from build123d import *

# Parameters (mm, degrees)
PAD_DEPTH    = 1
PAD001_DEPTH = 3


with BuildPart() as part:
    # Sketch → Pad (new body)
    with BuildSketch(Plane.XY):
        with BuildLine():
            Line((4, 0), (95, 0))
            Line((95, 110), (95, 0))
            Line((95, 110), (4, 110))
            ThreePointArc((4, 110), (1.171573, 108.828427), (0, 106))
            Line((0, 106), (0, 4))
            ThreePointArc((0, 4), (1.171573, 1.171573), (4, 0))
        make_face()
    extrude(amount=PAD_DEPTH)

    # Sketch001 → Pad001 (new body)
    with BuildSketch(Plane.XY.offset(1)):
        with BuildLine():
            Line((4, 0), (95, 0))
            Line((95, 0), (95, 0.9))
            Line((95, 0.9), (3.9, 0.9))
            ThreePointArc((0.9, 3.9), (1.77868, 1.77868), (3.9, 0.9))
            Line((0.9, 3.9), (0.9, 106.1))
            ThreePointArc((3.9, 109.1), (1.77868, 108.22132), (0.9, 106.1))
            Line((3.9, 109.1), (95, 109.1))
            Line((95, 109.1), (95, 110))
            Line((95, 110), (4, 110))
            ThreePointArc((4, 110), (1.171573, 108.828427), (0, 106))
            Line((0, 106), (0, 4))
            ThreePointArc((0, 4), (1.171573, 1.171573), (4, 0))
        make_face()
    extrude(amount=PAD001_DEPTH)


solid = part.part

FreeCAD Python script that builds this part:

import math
import FreeCAD as App
import Part
import Sketcher

V = App.Vector

doc = App.newDocument("Part")
body = doc.addObject("PartDesign::Body", "Body")

sketch1 = body.newObject("Sketcher::SketchObject", "Sketch")
sketch1.AttachmentSupport = (doc.getObject("XY_Plane"), [""])
sketch1.MapMode = "FlatFace"
sketch1.addGeometry(Part.LineSegment(V(4, 0, 0), V(95, 0, 0)), False)
sketch1.addGeometry(Part.LineSegment(V(95, 0, 0), V(95, 110, 0)), False)
sketch1.addGeometry(Part.LineSegment(V(95, 110, 0), V(4, 110, 0)), False)
sketch1.addGeometry(Part.ArcOfCircle(Part.Circle(V(4, 106, 0), V(0, 0, 1), 4), math.radians(90), math.radians(180)), False)
sketch1.addGeometry(Part.LineSegment(V(0, 106, 0), V(0, 4, 0)), False)
sketch1.addGeometry(Part.ArcOfCircle(Part.Circle(V(4, 4, 0), V(0, 0, 1), 4), math.radians(-180), math.radians(-90)), False)
sketch1.addConstraint(Sketcher.Constraint("Coincident", 0, 2, 1, 1))
sketch1.addConstraint(Sketcher.Constraint("Coincident", 1, 2, 2, 1))
sketch1.addConstraint(Sketcher.Constraint("Tangent", 2, 2, 3, 1))
sketch1.addConstraint(Sketcher.Constraint("Tangent", 3, 2, 4, 1))
sketch1.addConstraint(Sketcher.Constraint("Tangent", 4, 2, 5, 1))
sketch1.addConstraint(Sketcher.Constraint("Tangent", 5, 2, 0, 1))
sketch1.addConstraint(Sketcher.Constraint("Horizontal", 0))
sketch1.addConstraint(Sketcher.Constraint("Vertical", 1))
sketch1.addConstraint(Sketcher.Constraint("Horizontal", 2))
sketch1.addConstraint(Sketcher.Constraint("Vertical", 4))
sketch1.addConstraint(Sketcher.Constraint("Equal", 3, 5))
sketch1.addConstraint(Sketcher.Constraint("PointOnObject", 0, 2, -1))
sketch1.addConstraint(Sketcher.Constraint("PointOnObject", 3, 2, -2))
sketch1.addConstraint(Sketcher.Constraint("Radius", 3, 4.0))
sketch1.addConstraint(Sketcher.Constraint("DistanceX", 0, 1, 0, 2, 91.0))
sketch1.addConstraint(Sketcher.Constraint("DistanceY", 1, 1, 1, 2, 110.0))
pad1 = body.newObject("PartDesign::Pad", "Pad")
pad1.Profile = sketch1
pad1.Length = 1

sketch2 = body.newObject("Sketcher::SketchObject", "Sketch001")
sketch2.AttachmentSupport = (doc.getObject("XY_Plane"), [""])
sketch2.MapMode = "FlatFace"
sketch2.AttachmentOffset = App.Placement(V(0, 0, 1), App.Rotation())
sketch2.addGeometry(Part.LineSegment(V(4, 0, 0), V(95, 0, 0)), False)
sketch2.addGeometry(Part.LineSegment(V(95, 0, 0), V(95, 0.9, 0)), False)
sketch2.addGeometry(Part.LineSegment(V(95, 0.9, 0), V(3.9, 0.9, 0)), False)
sketch2.addGeometry(Part.ArcOfCircle(Part.Circle(V(3.9, 3.9, 0), V(0, 0, 1), 3), math.radians(-180), math.radians(-90)), False)
sketch2.addGeometry(Part.LineSegment(V(0.9, 3.9, 0), V(0.9, 106.1, 0)), False)
sketch2.addGeometry(Part.ArcOfCircle(Part.Circle(V(3.9, 106.1, 0), V(0, 0, 1), 3), math.radians(90), math.radians(180)), False)
sketch2.addGeometry(Part.LineSegment(V(3.9, 109.1, 0), V(95, 109.1, 0)), False)
sketch2.addGeometry(Part.LineSegment(V(95, 109.1, 0), V(95, 110, 0)), False)
sketch2.addGeometry(Part.LineSegment(V(95, 110, 0), V(4, 110, 0)), False)
sketch2.addGeometry(Part.ArcOfCircle(Part.Circle(V(4, 106, 0), V(0, 0, 1), 4), math.radians(90), math.radians(180)), False)
sketch2.addGeometry(Part.LineSegment(V(0, 106, 0), V(0, 4, 0)), False)
sketch2.addGeometry(Part.ArcOfCircle(Part.Circle(V(4, 4, 0), V(0, 0, 1), 4), math.radians(-180), math.radians(-90)), False)
sketch2.addConstraint(Sketcher.Constraint("Coincident", 0, 2, 1, 1))
sketch2.addConstraint(Sketcher.Constraint("Coincident", 1, 2, 2, 1))
sketch2.addConstraint(Sketcher.Constraint("Tangent", 2, 2, 3, 2))
sketch2.addConstraint(Sketcher.Constraint("Tangent", 3, 1, 4, 1))
sketch2.addConstraint(Sketcher.Constraint("Tangent", 4, 2, 5, 2))
sketch2.addConstraint(Sketcher.Constraint("Tangent", 5, 1, 6, 1))
sketch2.addConstraint(Sketcher.Constraint("Coincident", 6, 2, 7, 1))
sketch2.addConstraint(Sketcher.Constraint("Coincident", 7, 2, 8, 1))
sketch2.addConstraint(Sketcher.Constraint("Tangent", 8, 2, 9, 1))
sketch2.addConstraint(Sketcher.Constraint("Tangent", 9, 2, 10, 1))
sketch2.addConstraint(Sketcher.Constraint("Tangent", 10, 2, 11, 1))
sketch2.addConstraint(Sketcher.Constraint("Tangent", 11, 2, 0, 1))
sketch2.addConstraint(Sketcher.Constraint("Horizontal", 0))
sketch2.addConstraint(Sketcher.Constraint("Vertical", 1))
sketch2.addConstraint(Sketcher.Constraint("Horizontal", 2))
sketch2.addConstraint(Sketcher.Constraint("Vertical", 4))
sketch2.addConstraint(Sketcher.Constraint("Horizontal", 6))
sketch2.addConstraint(Sketcher.Constraint("Vertical", 7))
sketch2.addConstraint(Sketcher.Constraint("Horizontal", 8))
sketch2.addConstraint(Sketcher.Constraint("Vertical", 10))
sketch2.addConstraint(Sketcher.Constraint("Equal", 3, 5))
sketch2.addConstraint(Sketcher.Constraint("Equal", 9, 11))
sketch2.addConstraint(Sketcher.Constraint("PointOnObject", 0, 2, -1))
sketch2.addConstraint(Sketcher.Constraint("PointOnObject", 9, 2, -2))
sketch2.addConstraint(Sketcher.Constraint("Vertical", 1, 2, 6, 2))
sketch2.addConstraint(Sketcher.Constraint("Equal", 1, 7))
sketch2.addConstraint(Sketcher.Constraint("Radius", 3, 3.000001))
sketch2.addConstraint(Sketcher.Constraint("Radius", 9, 4.0))
sketch2.addConstraint(Sketcher.Constraint("DistanceX", 0, 1, 0, 2, 91.0))
sketch2.addConstraint(Sketcher.Constraint("DistanceY", 10, 2, 10, 1, 102.0))
sketch2.addConstraint(Sketcher.Constraint("DistanceX", 2, 2, 2, 1, 91.1))
sketch2.addConstraint(Sketcher.Constraint("DistanceY", 1, 1, 1, 2, 0.9))
pad2 = body.newObject("PartDesign::Pad", "Pad001")
pad2.Profile = sketch2
pad2.Length = 3

doc.recompute()
